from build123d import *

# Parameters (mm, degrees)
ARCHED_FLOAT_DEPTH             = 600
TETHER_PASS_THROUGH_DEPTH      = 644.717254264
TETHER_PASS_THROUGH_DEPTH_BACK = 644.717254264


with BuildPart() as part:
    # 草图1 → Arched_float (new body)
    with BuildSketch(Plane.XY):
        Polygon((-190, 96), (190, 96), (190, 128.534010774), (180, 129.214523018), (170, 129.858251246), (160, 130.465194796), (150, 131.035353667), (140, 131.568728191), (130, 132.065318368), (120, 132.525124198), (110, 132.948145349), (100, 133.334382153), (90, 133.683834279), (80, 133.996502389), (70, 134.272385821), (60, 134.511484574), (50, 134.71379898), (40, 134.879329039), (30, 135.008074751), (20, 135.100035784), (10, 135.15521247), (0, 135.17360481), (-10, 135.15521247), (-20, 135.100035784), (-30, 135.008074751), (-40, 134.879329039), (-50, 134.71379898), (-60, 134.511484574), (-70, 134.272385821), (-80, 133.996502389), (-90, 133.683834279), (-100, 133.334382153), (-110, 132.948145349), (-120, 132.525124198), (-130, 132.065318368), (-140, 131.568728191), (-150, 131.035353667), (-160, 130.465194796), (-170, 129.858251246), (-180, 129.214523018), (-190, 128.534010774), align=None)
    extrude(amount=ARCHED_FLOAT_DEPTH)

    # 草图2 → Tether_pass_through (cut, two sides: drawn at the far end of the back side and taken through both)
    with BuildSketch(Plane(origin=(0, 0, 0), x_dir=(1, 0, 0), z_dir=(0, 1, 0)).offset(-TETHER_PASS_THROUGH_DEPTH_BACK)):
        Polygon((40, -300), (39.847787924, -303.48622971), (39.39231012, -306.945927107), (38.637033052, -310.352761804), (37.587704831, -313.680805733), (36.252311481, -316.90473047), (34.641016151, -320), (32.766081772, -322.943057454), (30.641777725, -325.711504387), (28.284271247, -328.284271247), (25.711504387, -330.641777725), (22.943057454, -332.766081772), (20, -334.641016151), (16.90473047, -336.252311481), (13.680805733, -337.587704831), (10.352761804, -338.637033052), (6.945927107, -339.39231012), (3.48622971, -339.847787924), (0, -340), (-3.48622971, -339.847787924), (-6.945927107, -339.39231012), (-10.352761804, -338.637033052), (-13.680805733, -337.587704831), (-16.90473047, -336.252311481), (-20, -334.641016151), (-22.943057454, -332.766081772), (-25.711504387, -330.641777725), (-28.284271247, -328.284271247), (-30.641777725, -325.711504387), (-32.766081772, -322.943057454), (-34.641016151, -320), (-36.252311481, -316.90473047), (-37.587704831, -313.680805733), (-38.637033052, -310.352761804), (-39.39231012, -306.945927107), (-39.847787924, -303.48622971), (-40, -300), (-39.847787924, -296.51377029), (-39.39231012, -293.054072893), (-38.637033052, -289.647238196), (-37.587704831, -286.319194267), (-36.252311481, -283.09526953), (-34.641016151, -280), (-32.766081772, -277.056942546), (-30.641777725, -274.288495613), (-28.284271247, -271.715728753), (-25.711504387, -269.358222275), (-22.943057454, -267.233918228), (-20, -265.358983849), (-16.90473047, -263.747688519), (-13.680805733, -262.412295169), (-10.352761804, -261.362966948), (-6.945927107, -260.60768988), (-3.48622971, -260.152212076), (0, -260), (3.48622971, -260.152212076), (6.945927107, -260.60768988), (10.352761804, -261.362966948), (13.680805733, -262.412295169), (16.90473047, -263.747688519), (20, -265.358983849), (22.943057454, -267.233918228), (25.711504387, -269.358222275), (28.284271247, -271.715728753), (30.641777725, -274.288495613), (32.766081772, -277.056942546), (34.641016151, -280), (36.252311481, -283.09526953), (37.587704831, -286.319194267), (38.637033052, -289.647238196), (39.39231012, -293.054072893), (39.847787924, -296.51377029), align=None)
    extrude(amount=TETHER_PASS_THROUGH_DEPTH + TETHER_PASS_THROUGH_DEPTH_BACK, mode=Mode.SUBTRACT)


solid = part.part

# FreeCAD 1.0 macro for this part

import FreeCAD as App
import Part
import Sketcher
from FreeCAD import Vector
Q = App.Units.Quantity

doc = App.newDocument("Part")
params = doc.addObject("Spreadsheet::Sheet", "Params")
for row, (alias, value) in enumerate([
    ("sketch1_width", "380 mm"),
    ("pad1_length", "600 mm"),
], start=1):
    params.set(f"A{row}", alias)
    params.set(f"B{row}", "=" + value)
    params.setAlias(f"B{row}", alias)

body = doc.addObject("PartDesign::Body", "Body")

sketch1 = doc.addObject("Sketcher::SketchObject", "Sketch")
body.addObject(sketch1)
sketch1.AttachmentSupport = (doc.XY_Plane, [""])
sketch1.MapMode = "FlatFace"
sketch1.addGeometry(Part.LineSegment(Vector(-190, 96, 0), Vector(190, 96, 0)), False)
sketch1.addGeometry(Part.LineSegment(Vector(190, 96, 0), Vector(190, 128.534011, 0)), False)
sketch1.addGeometry(Part.LineSegment(Vector(190, 128.534011, 0), Vector(180, 129.214523, 0)), False)
sketch1.addGeometry(Part.LineSegment(Vector(180, 129.214523, 0), Vector(170, 129.858251, 0)), False)
sketch1.addGeometry(Part.LineSegment(Vector(170, 129.858251, 0), Vector(160, 130.465195, 0)), False)
sketch1.addGeometry(Part.LineSegment(Vector(160, 130.465195, 0), Vector(150, 131.035354, 0)), False)
sketch1.addGeometry(Part.LineSegment(Vector(150, 131.035354, 0), Vector(140, 131.568728, 0)), False)
sketch1.addGeometry(Part.LineSegment(Vector(140, 131.568728, 0), Vector(130, 132.065318, 0)), False)
sketch1.addGeometry(Part.LineSegment(Vector(130, 132.065318, 0), Vector(120, 132.525124, 0)), False)
sketch1.addGeometry(Part.LineSegment(Vector(120, 132.525124, 0), Vector(110, 132.948145, 0)), False)
sketch1.addGeometry(Part.LineSegment(Vector(110, 132.948145, 0), Vector(100, 133.334382, 0)), False)
sketch1.addGeometry(Part.LineSegment(Vector(100, 133.334382, 0), Vector(90, 133.683834, 0)), False)
sketch1.addGeometry(Part.LineSegment(Vector(90, 133.683834, 0), Vector(80, 133.996502, 0)), False)
sketch1.addGeometry(Part.LineSegment(Vector(80, 133.996502, 0), Vector(70, 134.272386, 0)), False)
sketch1.addGeometry(Part.LineSegment(Vector(70, 134.272386, 0), Vector(60, 134.511485, 0)), False)
sketch1.addGeometry(Part.LineSegment(Vector(60, 134.511485, 0), Vector(50, 134.713799, 0)), False)
sketch1.addGeometry(Part.LineSegment(Vector(50, 134.713799, 0), Vector(40, 134.879329, 0)), False)
sketch1.addGeometry(Part.LineSegment(Vector(40, 134.879329, 0), Vector(30, 135.008075, 0)), False)
sketch1.addGeometry(Part.LineSegment(Vector(30, 135.008075, 0), Vector(20, 135.100036, 0)), False)
sketch1.addGeometry(Part.LineSegment(Vector(20, 135.100036, 0), Vector(10, 135.155212, 0)), False)
sketch1.addGeometry(Part.LineSegment(Vector(10, 135.155212, 0), Vector(0, 135.173605, 0)), False)
sketch1.addGeometry(Part.LineSegment(Vector(0, 135.173605, 0), Vector(-10, 135.155212, 0)), False)
sketch1.addGeometry(Part.LineSegment(Vector(-10, 135.155212, 0), Vector(-20, 135.100036, 0)), False)
sketch1.addGeometry(Part.LineSegment(Vector(-20, 135.100036, 0), Vector(-30, 135.008075, 0)), False)
sketch1.addGeometry(Part.LineSegment(Vector(-30, 135.008075, 0), Vector(-40, 134.879329, 0)), False)
sketch1.addGeometry(Part.LineSegment(Vector(-40, 134.879329, 0), Vector(-50, 134.713799, 0)), False)
sketch1.addGeometry(Part.LineSegment(Vector(-50, 134.713799, 0), Vector(-60, 134.511485, 0)), False)
sketch1.addGeometry(Part.LineSegment(Vector(-60, 134.511485, 0), Vector(-70, 134.272386, 0)), False)
sketch1.addGeometry(Part.LineSegment(Vector(-70, 134.272386, 0), Vector(-80, 133.996502, 0)), False)
sketch1.addGeometry(Part.LineSegment(Vector(-80, 133.996502, 0), Vector(-90, 133.683834, 0)), False)
sketch1.addGeometry(Part.LineSegment(Vector(-90, 133.683834, 0), Vector(-100, 133.334382, 0)), False)
sketch1.addGeometry(Part.LineSegment(Vector(-100, 133.334382, 0), Vector(-110, 132.948145, 0)), False)
sketch1.addGeometry(Part.LineSegment(Vector(-110, 132.948145, 0), Vector(-120, 132.525124, 0)), False)
sketch1.addGeometry(Part.LineSegment(Vector(-120, 132.525124, 0), Vector(-130, 132.065318, 0)), False)
sketch1.addGeometry(Part.LineSegment(Vector(-130, 132.065318, 0), Vector(-140, 131.568728, 0)), False)
sketch1.addGeometry(Part.LineSegment(Vector(-140, 131.568728, 0), Vector(-150, 131.035354, 0)), False)
sketch1.addGeometry(Part.LineSegment(Vector(-150, 131.035354, 0), Vector(-160, 130.465195, 0)), False)
sketch1.addGeometry(Part.LineSegment(Vector(-160, 130.465195, 0), Vector(-170, 129.858251, 0)), False)
sketch1.addGeometry(Part.LineSegment(Vector(-170, 129.858251, 0), Vector(-180, 129.214523, 0)), False)
sketch1.addGeometry(Part.LineSegment(Vector(-180, 129.214523, 0), Vector(-190, 128.534011, 0)), False)
sketch1.addGeometry(Part.LineSegment(Vector(-190, 128.534011, 0), Vector(-190, 96, 0)), False)
sketch1.addConstraint(Sketcher.Constraint("Coincident", 0, 2, 1, 1))
sketch1.addConstraint(Sketcher.Constraint("Coincident", 1, 2, 2, 1))
sketch1.addConstraint(Sketcher.Constraint("Coincident", 2, 2, 3, 1))
sketch1.addConstraint(Sketcher.Constraint("Coincident", 3, 2, 4, 1))
sketch1.addConstraint(Sketcher.Constraint("Coincident", 4, 2, 5, 1))
sketch1.addConstraint(Sketcher.Constraint("Coincident", 5, 2, 6, 1))
sketch1.addConstraint(Sketcher.Constraint("Coincident", 6, 2, 7, 1))
sketch1.addConstraint(Sketcher.Constraint("Coincident", 7, 2, 8, 1))
sketch1.addConstraint(Sketcher.Constraint("Coincident", 8, 2, 9, 1))
sketch1.addConstraint(Sketcher.Constraint("Coincident", 9, 2, 10, 1))
sketch1.addConstraint(Sketcher.Constraint("Coincident", 10, 2, 11, 1))
sketch1.addConstraint(Sketcher.Constraint("Coincident", 11, 2, 12, 1))
sketch1.addConstraint(Sketcher.Constraint("Coincident", 12, 2, 13, 1))
sketch1.addConstraint(Sketcher.Constraint("Coincident", 13, 2, 14, 1))
sketch1.addConstraint(Sketcher.Constraint("Coincident", 14, 2, 15, 1))
sketch1.addConstraint(Sketcher.Constraint("Coincident", 15, 2, 16, 1))
sketch1.addConstraint(Sketcher.Constraint("Coincident", 16, 2, 17, 1))
sketch1.addConstraint(Sketcher.Constraint("Coincident", 17, 2, 18, 1))
sketch1.addConstraint(Sketcher.Constraint("Coincident", 18, 2, 19, 1))
sketch1.addConstraint(Sketcher.Constraint("Coincident", 19, 2, 20, 1))
sketch1.addConstraint(Sketcher.Constraint("Coincident", 20, 2, 21, 1))
sketch1.addConstraint(Sketcher.Constraint("Coincident", 21, 2, 22, 1))
sketch1.addConstraint(Sketcher.Constraint("Coincident", 22, 2, 23, 1))
sketch1.addConstraint(Sketcher.Constraint("Coincident", 23, 2, 24, 1))
sketch1.addConstraint(Sketcher.Constraint("Coincident", 24, 2, 25, 1))
sketch1.addConstraint(Sketcher.Constraint("Coincident", 25, 2, 26, 1))
sketch1.addConstraint(Sketcher.Constraint("Coincident", 26, 2, 27, 1))
sketch1.addConstraint(Sketcher.Constraint("Coincident", 27, 2, 28, 1))
sketch1.addConstraint(Sketcher.Constraint("Coincident", 28, 2, 29, 1))
sketch1.addConstraint(Sketcher.Constraint("Coincident", 29, 2, 30, 1))
sketch1.addConstraint(Sketcher.Constraint("Coincident", 30, 2, 31, 1))
sketch1.addConstraint(Sketcher.Constraint("Coincident", 31, 2, 32, 1))
sketch1.addConstraint(Sketcher.Constraint("Coincident", 32, 2, 33, 1))
sketch1.addConstraint(Sketcher.Constraint("Coincident", 33, 2, 34, 1))
sketch1.addConstraint(Sketcher.Constraint("Coincident", 34, 2, 35, 1))
sketch1.addConstraint(Sketcher.Constraint("Coincident", 35, 2, 36, 1))
sketch1.addConstraint(Sketcher.Constraint("Coincident", 36, 2, 37, 1))
sketch1.addConstraint(Sketcher.Constraint("Coincident", 37, 2, 38, 1))
sketch1.addConstraint(Sketcher.Constraint("Coincident", 38, 2, 39, 1))
sketch1.addConstraint(Sketcher.Constraint("Coincident", 39, 2, 40, 1))
sketch1.addConstraint(Sketcher.Constraint("Coincident", 40, 2, 0, 1))
sketch1.addConstraint(Sketcher.Constraint("Horizontal", 0))
sketch1.addConstraint(Sketcher.Constraint("Vertical", 1))
sketch1.addConstraint(Sketcher.Constraint("Vertical", 40))
sketch1.addConstraint(Sketcher.Constraint("Symmetric", 19, 2, 21, 2, -2))
sketch1.addConstraint(Sketcher.Constraint("Symmetric", 18, 2, 22, 2, -2))
sketch1.addConstraint(Sketcher.Constraint("Symmetric", 17, 2, 23, 2, -2))
sketch1.addConstraint(Sketcher.Constraint("Symmetric", 16, 2, 24, 2, -2))
sketch1.addConstraint(Sketcher.Constraint("Symmetric", 15, 2, 25, 2, -2))
sketch1.addConstraint(Sketcher.Constraint("Symmetric", 14, 2, 26, 2, -2))
sketch1.addConstraint(Sketcher.Constraint("Symmetric", 13, 2, 27, 2, -2))
sketch1.addConstraint(Sketcher.Constraint("Symmetric", 12, 2, 28, 2, -2))
sketch1.addConstraint(Sketcher.Constraint("Symmetric", 11, 2, 29, 2, -2))
sketch1.addConstraint(Sketcher.Constraint("Symmetric", 10, 2, 30, 2, -2))
sketch1.addConstraint(Sketcher.Constraint("Symmetric", 9, 2, 31, 2, -2))
sketch1.addConstraint(Sketcher.Constraint("Symmetric", 8, 2, 32, 2, -2))
sketch1.addConstraint(Sketcher.Constraint("Symmetric", 7, 2, 33, 2, -2))
sketch1.addConstraint(Sketcher.Constraint("Symmetric", 6, 2, 34, 2, -2))
sketch1.addConstraint(Sketcher.Constraint("Symmetric", 5, 2, 35, 2, -2))
sketch1.addConstraint(Sketcher.Constraint("Symmetric", 4, 2, 36, 2, -2))
sketch1.addConstraint(Sketcher.Constraint("Symmetric", 3, 2, 37, 2, -2))
sketch1.addConstraint(Sketcher.Constraint("Symmetric", 2, 2, 38, 2, -2))
sketch1.addConstraint(Sketcher.Constraint("Symmetric", 1, 2, 39, 2, -2))
sketch1.addConstraint(Sketcher.Constraint("PointOnObject", 20, 2, -2))
sketch1.addConstraint(Sketcher.Constraint("DistanceX", 0, 1, 0, 2, 380.0))
sketch1.addConstraint(Sketcher.Constraint("DistanceY", -1, 1, 0, 2, 96.0))
sketch1.addConstraint(Sketcher.Constraint("DistanceX", -1, 1, 2, 2, 180.0))
sketch1.addConstraint(Sketcher.Constraint("DistanceX", -1, 1, 3, 2, 170.0))
sketch1.addConstraint(Sketcher.Constraint("DistanceX", -1, 1, 4, 2, 160.0))
sketch1.addConstraint(Sketcher.Constraint("DistanceX", -1, 1, 5, 2, 150.0))
sketch1.addConstraint(Sketcher.Constraint("DistanceX", -1, 1, 6, 2, 140.0))
sketch1.addConstraint(Sketcher.Constraint("DistanceX", -1, 1, 7, 2, 130.0))
sketch1.addConstraint(Sketcher.Constraint("DistanceX", -1, 1, 8, 2, 120.0))
sketch1.addConstraint(Sketcher.Constraint("DistanceX", -1, 1, 9, 2, 110.0))
sketch1.addConstraint(Sketcher.Constraint("DistanceX", -1, 1, 10, 2, 100.0))
sketch1.addConstraint(Sketcher.Constraint("DistanceX", -1, 1, 11, 2, 90.0))
sketch1.addConstraint(Sketcher.Constraint("DistanceX", -1, 1, 12, 2, 80.0))
sketch1.addConstraint(Sketcher.Constraint("DistanceX", -1, 1, 13, 2, 70.0))
sketch1.addConstraint(Sketcher.Constraint("DistanceX", -1, 1, 14, 2, 60.0))
sketch1.addConstraint(Sketcher.Constraint("DistanceX", -1, 1, 15, 2, 50.0))
sketch1.addConstraint(Sketcher.Constraint("DistanceX", -1, 1, 16, 2, 40.0))
sketch1.addConstraint(Sketcher.Constraint("DistanceX", -1, 1, 17, 2, 30.0))
sketch1.addConstraint(Sketcher.Constraint("DistanceX", -1, 1, 18, 2, 20.0))
sketch1.addConstraint(Sketcher.Constraint("DistanceX", -1, 1, 19, 2, 10.0))
sketch1.addConstraint(Sketcher.Constraint("DistanceY", 1, 1, 1, 2, 32.534011))
sketch1.addConstraint(Sketcher.Constraint("DistanceY", -1, 1, 15, 2, 134.713799))
sketch1.addConstraint(Sketcher.Constraint("DistanceY", 13, 2, 14, 2, 0.239099))
sketch1.addConstraint(Sketcher.Constraint("Distance", 2, 10.023128))
sketch1.addConstraint(Sketcher.Constraint("Distance", 5, 10.016241))
sketch1.addConstraint(Sketcher.Constraint("Distance", 16, 10.00137))
sketch1.addConstraint(Sketcher.Constraint("Distance", 17, 10.000829))
sketch1.addConstraint(Sketcher.Constraint("DistanceY", -1, 1, 3, 2, 129.858251))
sketch1.addConstraint(Sketcher.Constraint("DistanceY", -1, 1, 6, 2, 131.568728))
sketch1.addConstraint(Sketcher.Constraint("DistanceY", -1, 1, 7, 2, 132.065318))
sketch1.addConstraint(Sketcher.Constraint("DistanceY", 2, 2, 4, 2, 1.250672))
sketch1.addConstraint(Sketcher.Constraint("DistanceY", 5, 2, 8, 2, 1.489771))
sketch1.addConstraint(Sketcher.Constraint("DistanceY", 8, 2, 9, 2, 0.423021))
sketch1.addConstraint(Sketcher.Constraint("DistanceY", 5, 2, 10, 2, 2.299028))
sketch1.addConstraint(Sketcher.Constraint("DistanceY", 9, 2, 11, 2, 0.735689))
sketch1.addConstraint(Sketcher.Constraint("DistanceY", 11, 2, 12, 2, 0.312668))
sketch1.addConstraint(Sketcher.Constraint("DistanceY", 11, 2, 13, 2, 0.588552))
sketch1.addConstraint(Sketcher.Constraint("DistanceY", 17, 2, 18, 2, 0.091961))
sketch1.addConstraint(Sketcher.Constraint("DistanceY", 18, 2, 20, 2, 0.073569))
sketch1.addConstraint(Sketcher.Constraint("DistanceY", -1, 1, 19, 2, 135.155212))
sketch1.setExpression("Constraints[64]", "Params.sketch1_width")
pad1 = doc.addObject("PartDesign::Pad", "Pad")
body.addObject(pad1)
pad1.Profile = sketch1
pad1.setExpression("Length", "Params.pad1_length")

sketch2 = doc.addObject("Sketcher::SketchObject", "Sketch001")
body.addObject(sketch2)
sketch2.AttachmentSupport = (doc.XZ_Plane, [""])
sketch2.MapMode = "FlatFace"
sketch2.addGeometry(Part.LineSegment(Vector(39.847788, 303.48623, 0), Vector(40, 300, 0)), False)
sketch2.addGeometry(Part.LineSegment(Vector(40, 300, 0), Vector(39.847788, 296.51377, 0)), False)
sketch2.addGeometry(Part.LineSegment(Vector(39.847788, 296.51377, 0), Vector(39.39231, 293.054073, 0)), False)
sketch2.addGeometry(Part.LineSegment(Vector(39.39231, 293.054073, 0), Vector(38.637033, 289.647238, 0)), False)
sketch2.addGeometry(Part.LineSegment(Vector(38.637033, 289.647238, 0), Vector(37.587705, 286.319194, 0)), False)
sketch2.addGeometry(Part.LineSegment(Vector(37.587705, 286.319194, 0), Vector(36.252311, 283.09527, 0)), False)
sketch2.addGeometry(Part.LineSegment(Vector(36.252311, 283.09527, 0), Vector(34.641016, 280, 0)), False)
sketch2.addGeometry(Part.LineSegment(Vector(34.641016, 280, 0), Vector(32.766082, 277.056943, 0)), False)
sketch2.addGeometry(Part.LineSegment(Vector(32.766082, 277.056943, 0), Vector(30.641778, 274.288496, 0)), False)
sketch2.addGeometry(Part.LineSegment(Vector(30.641778, 274.288496, 0), Vector(28.284271, 271.715729, 0)), False)
sketch2.addGeometry(Part.LineSegment(Vector(28.284271, 271.715729, 0), Vector(25.711504, 269.358222, 0)), False)
sketch2.addGeometry(Part.LineSegment(Vector(25.711504, 269.358222, 0), Vector(22.943057, 267.233918, 0)), False)
sketch2.addGeometry(Part.LineSegment(Vector(22.943057, 267.233918, 0), Vector(20, 265.358984, 0)), False)
sketch2.addGeometry(Part.LineSegment(Vector(20, 265.358984, 0), Vector(16.90473, 263.747689, 0)), False)
sketch2.addGeometry(Part.LineSegment(Vector(16.90473, 263.747689, 0), Vector(13.680806, 262.412295, 0)), False)
sketch2.addGeometry(Part.LineSegment(Vector(13.680806, 262.412295, 0), Vector(10.352762, 261.362967, 0)), False)
sketch2.addGeometry(Part.LineSegment(Vector(10.352762, 261.362967, 0), Vector(6.945927, 260.60769, 0)), False)
sketch2.addGeometry(Part.LineSegment(Vector(6.945927, 260.60769, 0), Vector(3.48623, 260.152212, 0)), False)
sketch2.addGeometry(Part.LineSegment(Vector(3.48623, 260.152212, 0), Vector(0, 260, 0)), False)
sketch2.addGeometry(Part.LineSegment(Vector(0, 260, 0), Vector(-3.48623, 260.152212, 0)), False)
sketch2.addGeometry(Part.LineSegment(Vector(-3.48623, 260.152212, 0), Vector(-6.945927, 260.60769, 0)), False)
sketch2.addGeometry(Part.LineSegment(Vector(-6.945927, 260.60769, 0), Vector(-10.352762, 261.362967, 0)), False)
sketch2.addGeometry(Part.LineSegment(Vector(-10.352762, 261.362967, 0), Vector(-13.680806, 262.412295, 0)), False)
sketch2.addGeometry(Part.LineSegment(Vector(-13.680806, 262.412295, 0), Vector(-16.90473, 263.747689, 0)), False)
sketch2.addGeometry(Part.LineSegment(Vector(-16.90473, 263.747689, 0), Vector(-20, 265.358984, 0)), False)
sketch2.addGeometry(Part.LineSegment(Vector(-20, 265.358984, 0), Vector(-22.943057, 267.233918, 0)), False)
sketch2.addGeometry(Part.LineSegment(Vector(-22.943057, 267.233918, 0), Vector(-25.711504, 269.358222, 0)), False)
sketch2.addGeometry(Part.LineSegment(Vector(-25.711504, 269.358222, 0), Vector(-28.284271, 271.715729, 0)), False)
sketch2.addGeometry(Part.LineSegment(Vector(-28.284271, 271.715729, 0), Vector(-30.641778, 274.288496, 0)), False)
sketch2.addGeometry(Part.LineSegment(Vector(-30.641778, 274.288496, 0), Vector(-32.766082, 277.056943, 0)), False)
sketch2.addGeometry(Part.LineSegment(Vector(-32.766082, 277.056943, 0), Vector(-34.641016, 280, 0)), False)
sketch2.addGeometry(Part.LineSegment(Vector(-34.641016, 280, 0), Vector(-36.252311, 283.09527, 0)), False)
sketch2.addGeometry(Part.LineSegment(Vector(-36.252311, 283.09527, 0), Vector(-37.587705, 286.319194, 0)), False)
sketch2.addGeometry(Part.LineSegment(Vector(-37.587705, 286.319194, 0), Vector(-38.637033, 289.647238, 0)), False)
sketch2.addGeometry(Part.LineSegment(Vector(-38.637033, 289.647238, 0), Vector(-39.39231, 293.054073, 0)), False)
sketch2.addGeometry(Part.LineSegment(Vector(-39.39231, 293.054073, 0), Vector(-39.847788, 296.51377, 0)), False)
sketch2.addGeometry(Part.LineSegment(Vector(-39.847788, 296.51377, 0), Vector(-40, 300, 0)), False)
sketch2.addGeometry(Part.LineSegment(Vector(-40, 300, 0), Vector(-39.847788, 303.48623, 0)), False)
sketch2.addGeometry(Part.LineSegment(Vector(-39.847788, 303.48623, 0), Vector(-39.39231, 306.945927, 0)), False)
sketch2.addGeometry(Part.LineSegment(Vector(-39.39231, 306.945927, 0), Vector(-38.637033, 310.352762, 0)), False)
sketch2.addGeometry(Part.LineSegment(Vector(-38.637033, 310.352762, 0), Vector(-37.587705, 313.680806, 0)), False)
sketch2.addGeometry(Part.LineSegment(Vector(-37.587705, 313.680806, 0), Vector(-36.252311, 316.90473, 0)), False)
sketch2.addGeometry(Part.LineSegment(Vector(-36.252311, 316.90473, 0), Vector(-34.641016, 320, 0)), False)
sketch2.addGeometry(Part.LineSegment(Vector(-34.641016, 320, 0), Vector(-32.766082, 322.943057, 0)), False)
sketch2.addGeometry(Part.LineSegment(Vector(-32.766082, 322.943057, 0), Vector(-30.641778, 325.711504, 0)), False)
sketch2.addGeometry(Part.LineSegment(Vector(-30.641778, 325.711504, 0), Vector(-28.284271, 328.284271, 0)), False)
sketch2.addGeometry(Part.LineSegment(Vector(-28.284271, 328.284271, 0), Vector(-25.711504, 330.641778, 0)), False)
sketch2.addGeometry(Part.LineSegment(Vector(-25.711504, 330.641778, 0), Vector(-22.943057, 332.766082, 0)), False)
sketch2.addGeometry(Part.LineSegment(Vector(-22.943057, 332.766082, 0), Vector(-20, 334.641016, 0)), False)
sketch2.addGeometry(Part.LineSegment(Vector(-20, 334.641016, 0), Vector(-16.90473, 336.252311, 0)), False)
sketch2.addGeometry(Part.LineSegment(Vector(-16.90473, 336.252311, 0), Vector(-13.680806, 337.587705, 0)), False)
sketch2.addGeometry(Part.LineSegment(Vector(-13.680806, 337.587705, 0), Vector(-10.352762, 338.637033, 0)), False)
sketch2.addGeometry(Part.LineSegment(Vector(-10.352762, 338.637033, 0), Vector(-6.945927, 339.39231, 0)), False)
sketch2.addGeometry(Part.LineSegment(Vector(-6.945927, 339.39231, 0), Vector(-3.48623, 339.847788, 0)), False)
sketch2.addGeometry(Part.LineSegment(Vector(-3.48623, 339.847788, 0), Vector(0, 340, 0)), False)
sketch2.addGeometry(Part.LineSegment(Vector(0, 340, 0), Vector(3.48623, 339.847788, 0)), False)
sketch2.addGeometry(Part.LineSegment(Vector(3.48623, 339.847788, 0), Vector(6.945927, 339.39231, 0)), False)
sketch2.addGeometry(Part.LineSegment(Vector(6.945927, 339.39231, 0), Vector(10.352762, 338.637033, 0)), False)
sketch2.addGeometry(Part.LineSegment(Vector(10.352762, 338.637033, 0), Vector(13.680806, 337.587705, 0)), False)
sketch2.addGeometry(Part.LineSegment(Vector(13.680806, 337.587705, 0), Vector(16.90473, 336.252311, 0)), False)
sketch2.addGeometry(Part.LineSegment(Vector(16.90473, 336.252311, 0), Vector(20, 334.641016, 0)), False)
sketch2.addGeometry(Part.LineSegment(Vector(20, 334.641016, 0), Vector(22.943057, 332.766082, 0)), False)
sketch2.addGeometry(Part.LineSegment(Vector(22.943057, 332.766082, 0), Vector(25.711504, 330.641778, 0)), False)
sketch2.addGeometry(Part.LineSegment(Vector(25.711504, 330.641778, 0), Vector(28.284271, 328.284271, 0)), False)
sketch2.addGeometry(Part.LineSegment(Vector(28.284271, 328.284271, 0), Vector(30.641778, 325.711504, 0)), False)
sketch2.addGeometry(Part.LineSegment(Vector(30.641778, 325.711504, 0), Vector(32.766082, 322.943057, 0)), False)
sketch2.addGeometry(Part.LineSegment(Vector(32.766082, 322.943057, 0), Vector(34.641016, 320, 0)), False)
sketch2.addGeometry(Part.LineSegment(Vector(34.641016, 320, 0), Vector(36.252311, 316.90473, 0)), False)
sketch2.addGeometry(Part.LineSegment(Vector(36.252311, 316.90473, 0), Vector(37.587705, 313.680806, 0)), False)
sketch2.addGeometry(Part.LineSegment(Vector(37.587705, 313.680806, 0), Vector(38.637033, 310.352762, 0)), False)
sketch2.addGeometry(Part.LineSegment(Vector(38.637033, 310.352762, 0), Vector(39.39231, 306.945927, 0)), False)
sketch2.addGeometry(Part.LineSegment(Vector(39.39231, 306.945927, 0), Vector(39.847788, 303.48623, 0)), False)
sketch2.addConstraint(Sketcher.Constraint("Coincident", 0, 2, 1, 1))
sketch2.addConstraint(Sketcher.Constraint("Coincident", 1, 2, 2, 1))
sketch2.addConstraint(Sketcher.Constraint("Coincident", 2, 2, 3, 1))
sketch2.addConstraint(Sketcher.Constraint("Coincident", 3, 2, 4, 1))
sketch2.addConstraint(Sketcher.Constraint("Coincident", 4, 2, 5, 1))
sketch2.addConstraint(Sketcher.Constraint("Coincident", 5, 2, 6, 1))
sketch2.addConstraint(Sketcher.Constraint("Coincident", 6, 2, 7, 1))
sketch2.addConstraint(Sketcher.Constraint("Coincident", 7, 2, 8, 1))
sketch2.addConstraint(Sketcher.Constraint("Coincident", 8, 2, 9, 1))
sketch2.addConstraint(Sketcher.Constraint("Coincident", 9, 2, 10, 1))
sketch2.addConstraint(Sketcher.Constraint("Coincident", 10, 2, 11, 1))
sketch2.addConstraint(Sketcher.Constraint("Coincident", 11, 2, 12, 1))
sketch2.addConstraint(Sketcher.Constraint("Coincident", 12, 2, 13, 1))
sketch2.addConstraint(Sketcher.Constraint("Coincident", 13, 2, 14, 1))
sketch2.addConstraint(Sketcher.Constraint("Coincident", 14, 2, 15, 1))
sketch2.addConstraint(Sketcher.Constraint("Coincident", 15, 2, 16, 1))
sketch2.addConstraint(Sketcher.Constraint("Coincident", 16, 2, 17, 1))
sketch2.addConstraint(Sketcher.Constraint("Coincident", 17, 2, 18, 1))
sketch2.addConstraint(Sketcher.Constraint("Coincident", 18, 2, 19, 1))
sketch2.addConstraint(Sketcher.Constraint("Coincident", 19, 2, 20, 1))
sketch2.addConstraint(Sketcher.Constraint("Coincident", 20, 2, 21, 1))
sketch2.addConstraint(Sketcher.Constraint("Coincident", 21, 2, 22, 1))
sketch2.addConstraint(Sketcher.Constraint("Coincident", 22, 2, 23, 1))
sketch2.addConstraint(Sketcher.Constraint("Coincident", 23, 2, 24, 1))
sketch2.addConstraint(Sketcher.Constraint("Coincident", 24, 2, 25, 1))
sketch2.addConstraint(Sketcher.Constraint("Coincident", 25, 2, 26, 1))
sketch2.addConstraint(Sketcher.Constraint("Coincident", 26, 2, 27, 1))
sketch2.addConstraint(Sketcher.Constraint("Coincident", 27, 2, 28, 1))
sketch2.addConstraint(Sketcher.Constraint("Coincident", 28, 2, 29, 1))
sketch2.addConstraint(Sketcher.Constraint("Coincident", 29, 2, 30, 1))
sketch2.addConstraint(Sketcher.Constraint("Coincident", 30, 2, 31, 1))
sketch2.addConstraint(Sketcher.Constraint("Coincident", 31, 2, 32, 1))
sketch2.addConstraint(Sketcher.Constraint("Coincident", 32, 2, 33, 1))
sketch2.addConstraint(Sketcher.Constraint("Coincident", 33, 2, 34, 1))
sketch2.addConstraint(Sketcher.Constraint("Coincident", 34, 2, 35, 1))
sketch2.addConstraint(Sketcher.Constraint("Coincident", 35, 2, 36, 1))
sketch2.addConstraint(Sketcher.Constraint("Coincident", 36, 2, 37, 1))
sketch2.addConstraint(Sketcher.Constraint("Coincident", 37, 2, 38, 1))
sketch2.addConstraint(Sketcher.Constraint("Coincident", 38, 2, 39, 1))
sketch2.addConstraint(Sketcher.Constraint("Coincident", 39, 2, 40, 1))
sketch2.addConstraint(Sketcher.Constraint("Coincident", 40, 2, 41, 1))
sketch2.addConstraint(Sketcher.Constraint("Coincident", 41, 2, 42, 1))
sketch2.addConstraint(Sketcher.Constraint("Coincident", 42, 2, 43, 1))
sketch2.addConstraint(Sketcher.Constraint("Coincident", 43, 2, 44, 1))
sketch2.addConstraint(Sketcher.Constraint("Coincident", 44, 2, 45, 1))
sketch2.addConstraint(Sketcher.Constraint("Coincident", 45, 2, 46, 1))
sketch2.addConstraint(Sketcher.Constraint("Coincident", 46, 2, 47, 1))
sketch2.addConstraint(Sketcher.Constraint("Coincident", 47, 2, 48, 1))
sketch2.addConstraint(Sketcher.Constraint("Coincident", 48, 2, 49, 1))
sketch2.addConstraint(Sketcher.Constraint("Coincident", 49, 2, 50, 1))
sketch2.addConstraint(Sketcher.Constraint("Coincident", 50, 2, 51, 1))
sketch2.addConstraint(Sketcher.Constraint("Coincident", 51, 2, 52, 1))
sketch2.addConstraint(Sketcher.Constraint("Coincident", 52, 2, 53, 1))
sketch2.addConstraint(Sketcher.Constraint("Coincident", 53, 2, 54, 1))
sketch2.addConstraint(Sketcher.Constraint("Coincident", 54, 2, 55, 1))
sketch2.addConstraint(Sketcher.Constraint("Coincident", 55, 2, 56, 1))
sketch2.addConstraint(Sketcher.Constraint("Coincident", 56, 2, 57, 1))
sketch2.addConstraint(Sketcher.Constraint("Coincident", 57, 2, 58, 1))
sketch2.addConstraint(Sketcher.Constraint("Coincident", 58, 2, 59, 1))
sketch2.addConstraint(Sketcher.Constraint("Coincident", 59, 2, 60, 1))
sketch2.addConstraint(Sketcher.Constraint("Coincident", 60, 2, 61, 1))
sketch2.addConstraint(Sketcher.Constraint("Coincident", 61, 2, 62, 1))
sketch2.addConstraint(Sketcher.Constraint("Coincident", 62, 2, 63, 1))
sketch2.addConstraint(Sketcher.Constraint("Coincident", 63, 2, 64, 1))
sketch2.addConstraint(Sketcher.Constraint("Coincident", 64, 2, 65, 1))
sketch2.addConstraint(Sketcher.Constraint("Coincident", 65, 2, 66, 1))
sketch2.addConstraint(Sketcher.Constraint("Coincident", 66, 2, 67, 1))
sketch2.addConstraint(Sketcher.Constraint("Coincident", 67, 2, 68, 1))
sketch2.addConstraint(Sketcher.Constraint("Coincident", 68, 2, 69, 1))
sketch2.addConstraint(Sketcher.Constraint("Coincident", 69, 2, 70, 1))
sketch2.addConstraint(Sketcher.Constraint("Coincident", 70, 2, 71, 1))
sketch2.addConstraint(Sketcher.Constraint("Coincident", 71, 2, 0, 1))
sketch2.addConstraint(Sketcher.Constraint("Symmetric", 17, 2, 19, 2, -2))
sketch2.addConstraint(Sketcher.Constraint("Symmetric", 16, 2, 20, 2, -2))
sketch2.addConstraint(Sketcher.Constraint("Symmetric", 15, 2, 21, 2, -2))
sketch2.addConstraint(Sketcher.Constraint("Symmetric", 14, 2, 22, 2, -2))
sketch2.addConstraint(Sketcher.Constraint("Symmetric", 13, 2, 23, 2, -2))
sketch2.addConstraint(Sketcher.Constraint("Symmetric", 12, 2, 24, 2, -2))
sketch2.addConstraint(Sketcher.Constraint("Symmetric", 11, 2, 25, 2, -2))
sketch2.addConstraint(Sketcher.Constraint("Symmetric", 10, 2, 26, 2, -2))
sketch2.addConstraint(Sketcher.Constraint("Symmetric", 9, 2, 27, 2, -2))
sketch2.addConstraint(Sketcher.Constraint("Symmetric", 8, 2, 28, 2, -2))
sketch2.addConstraint(Sketcher.Constraint("Symmetric", 7, 2, 29, 2, -2))
sketch2.addConstraint(Sketcher.Constraint("Symmetric", 6, 2, 30, 2, -2))
sketch2.addConstraint(Sketcher.Constraint("Symmetric", 5, 2, 31, 2, -2))
sketch2.addConstraint(Sketcher.Constraint("Symmetric", 4, 2, 32, 2, -2))
sketch2.addConstraint(Sketcher.Constraint("Symmetric", 3, 2, 33, 2, -2))
sketch2.addConstraint(Sketcher.Constraint("Symmetric", 2, 2, 34, 2, -2))
sketch2.addConstraint(Sketcher.Constraint("Symmetric", 1, 2, 35, 2, -2))
sketch2.addConstraint(Sketcher.Constraint("Symmetric", 0, 2, 36, 2, -2))
sketch2.addConstraint(Sketcher.Constraint("Symmetric", 53, 2, 55, 2, -2))
sketch2.addConstraint(Sketcher.Constraint("Symmetric", 52, 2, 56, 2, -2))
sketch2.addConstraint(Sketcher.Constraint("Symmetric", 51, 2, 57, 2, -2))
sketch2.addConstraint(Sketcher.Constraint("Symmetric", 50, 2, 58, 2, -2))
sketch2.addConstraint(Sketcher.Constraint("Symmetric", 49, 2, 59, 2, -2))
sketch2.addConstraint(Sketcher.Constraint("Symmetric", 48, 2, 60, 2, -2))
sketch2.addConstraint(Sketcher.Constraint("Symmetric", 47, 2, 61, 2, -2))
sketch2.addConstraint(Sketcher.Constraint("Symmetric", 46, 2, 62, 2, -2))
sketch2.addConstraint(Sketcher.Constraint("Symmetric", 45, 2, 63, 2, -2))
sketch2.addConstraint(Sketcher.Constraint("Symmetric", 44, 2, 64, 2, -2))
sketch2.addConstraint(Sketcher.Constraint("Symmetric", 43, 2, 65, 2, -2))
sketch2.addConstraint(Sketcher.Constraint("Symmetric", 42, 2, 66, 2, -2))
sketch2.addConstraint(Sketcher.Constraint("Symmetric", 41, 2, 67, 2, -2))
sketch2.addConstraint(Sketcher.Constraint("Symmetric", 40, 2, 68, 2, -2))
sketch2.addConstraint(Sketcher.Constraint("Symmetric", 39, 2, 69, 2, -2))
sketch2.addConstraint(Sketcher.Constraint("Symmetric", 38, 2, 70, 2, -2))
sketch2.addConstraint(Sketcher.Constraint("Symmetric", 37, 2, 71, 2, -2))
sketch2.addConstraint(Sketcher.Constraint("PointOnObject", 18, 2, -2))
sketch2.addConstraint(Sketcher.Constraint("PointOnObject", 54, 2, -2))
sketch2.addConstraint(Sketcher.Constraint("Perpendicular", 0, 18))
sketch2.addConstraint(Sketcher.Constraint("Perpendicular", 1, 19))
sketch2.addConstraint(Sketcher.Constraint("Perpendicular", 2, 20))
sketch2.addConstraint(Sketcher.Constraint("Perpendicular", 3, 21))
sketch2.addConstraint(Sketcher.Constraint("Perpendicular", 4, 22))
sketch2.addConstraint(Sketcher.Constraint("Perpendicular", 5, 23))
sketch2.addConstraint(Sketcher.Constraint("Perpendicular", 6, 24))
sketch2.addConstraint(Sketcher.Constraint("Perpendicular", 7, 25))
sketch2.addConstraint(Sketcher.Constraint("Perpendicular", 8, 26))
sketch2.addConstraint(Sketcher.Constraint("Perpendicular", 9, 27))
sketch2.addConstraint(Sketcher.Constraint("Perpendicular", 20, 38))
sketch2.addConstraint(Sketcher.Constraint("Perpendicular", 21, 39))
sketch2.addConstraint(Sketcher.Constraint("Perpendicular", 22, 40))
sketch2.addConstraint(Sketcher.Constraint("Perpendicular", 23, 41))
sketch2.addConstraint(Sketcher.Constraint("Perpendicular", 24, 42))
sketch2.addConstraint(Sketcher.Constraint("Perpendicular", 25, 43))
sketch2.addConstraint(Sketcher.Constraint("Perpendicular", 26, 44))
sketch2.addConstraint(Sketcher.Constraint("Perpendicular", 27, 45))
sketch2.addConstraint(Sketcher.Constraint("Perpendicular", 28, 46))
sketch2.addConstraint(Sketcher.Constraint("Perpendicular", 29, 47))
sketch2.addConstraint(Sketcher.Constraint("Perpendicular", 30, 48))
sketch2.addConstraint(Sketcher.Constraint("Perpendicular", 31, 49))
sketch2.addConstraint(Sketcher.Constraint("Perpendicular", 32, 50))
sketch2.addConstraint(Sketcher.Constraint("Perpendicular", 33, 51))
sketch2.addConstraint(Sketcher.Constraint("Perpendicular", 34, 52))
sketch2.addConstraint(Sketcher.Constraint("Perpendicular", 35, 53))
sketch2.addConstraint(Sketcher.Constraint("Perpendicular", 36, 54))
sketch2.addConstraint(Sketcher.Constraint("Vertical", 35, 2, 37, 2))
sketch2.addConstraint(Sketcher.Constraint("Vertical", 34, 2, 38, 2))
sketch2.addConstraint(Sketcher.Constraint("Vertical", 33, 2, 39, 2))
sketch2.addConstraint(Sketcher.Constraint("Vertical", 32, 2, 40, 2))
sketch2.addConstraint(Sketcher.Constraint("Vertical", 31, 2, 41, 2))
sketch2.addConstraint(Sketcher.Constraint("Vertical", 30, 2, 42, 2))
sketch2.addConstraint(Sketcher.Constraint("Vertical", 29, 2, 43, 2))
sketch2.addConstraint(Sketcher.Constraint("Vertical", 28, 2, 44, 2))
sketch2.addConstraint(Sketcher.Constraint("Vertical", 27, 2, 45, 2))
sketch2.addConstraint(Sketcher.Constraint("Vertical", 26, 2, 46, 2))
sketch2.addConstraint(Sketcher.Constraint("Vertical", 25, 2, 47, 2))
sketch2.addConstraint(Sketcher.Constraint("Vertical", 24, 2, 48, 2))
sketch2.addConstraint(Sketcher.Constraint("Vertical", 23, 2, 49, 2))
sketch2.addConstraint(Sketcher.Constraint("Vertical", 22, 2, 50, 2))
sketch2.addConstraint(Sketcher.Constraint("Vertical", 21, 2, 51, 2))
sketch2.addConstraint(Sketcher.Constraint("Vertical", 20, 2, 52, 2))
sketch2.addConstraint(Sketcher.Constraint("Vertical", 19, 2, 53, 2))
sketch2.addConstraint(Sketcher.Constraint("Equal", 1, 2))
sketch2.addConstraint(Sketcher.Constraint("Equal", 2, 3))
sketch2.addConstraint(Sketcher.Constraint("Equal", 3, 4))
sketch2.addConstraint(Sketcher.Constraint("Equal", 4, 5))
sketch2.addConstraint(Sketcher.Constraint("Equal", 5, 6))
sketch2.addConstraint(Sketcher.Constraint("Equal", 6, 7))
sketch2.addConstraint(Sketcher.Constraint("Equal", 7, 8))
sketch2.addConstraint(Sketcher.Constraint("Equal", 8, 9))
sketch2.addConstraint(Sketcher.Constraint("Equal", 9, 10))
sketch2.addConstraint(Sketcher.Constraint("Equal", 10, 11))
sketch2.addConstraint(Sketcher.Constraint("Equal", 11, 12))
sketch2.addConstraint(Sketcher.Constraint("Equal", 12, 13))
sketch2.addConstraint(Sketcher.Constraint("Equal", 13, 14))
sketch2.addConstraint(Sketcher.Constraint("Equal", 14, 15))
sketch2.addConstraint(Sketcher.Constraint("Equal", 15, 16))
sketch2.addConstraint(Sketcher.Constraint("Equal", 16, 17))
sketch2.addConstraint(Sketcher.Constraint("Equal", 17, 18))
sketch2.addConstraint(Sketcher.Constraint("DistanceX", -1, 1, 0, 2, 40.0))
sketch2.addConstraint(Sketcher.Constraint("DistanceY", -1, 1, 0, 2, 300.0))
sketch2.addConstraint(Sketcher.Constraint("DistanceY", -1, 1, 6, 2, 280.0))
sketch2.addConstraint(Sketcher.Constraint("Angle", 0, Q("-87.5 deg")))
sketch2.addConstraint(Sketcher.Constraint("Angle", 2, Q("-97.5 deg")))
sketch2.addConstraint(Sketcher.Constraint("Angle", 3, Q("-102.5 deg")))
sketch2.addConstraint(Sketcher.Constraint("Angle", 4, Q("-107.5 deg")))
sketch2.addConstraint(Sketcher.Constraint("Angle", 5, Q("-112.5 deg")))
sketch2.addConstraint(Sketcher.Constraint("Angle", 6, Q("-117.5 deg")))
sketch2.addConstraint(Sketcher.Constraint("Angle", 7, Q("-122.5 deg")))
sketch2.addConstraint(Sketcher.Constraint("Angle", 8, Q("-127.5 deg")))
pocket1 = doc.addObject("PartDesign::Pocket", "Pocket")
body.addObject(pocket1)
pocket1.Profile = sketch2
pocket1.Type = "ThroughAll"
pocket1.Midplane = True

doc.recompute()
